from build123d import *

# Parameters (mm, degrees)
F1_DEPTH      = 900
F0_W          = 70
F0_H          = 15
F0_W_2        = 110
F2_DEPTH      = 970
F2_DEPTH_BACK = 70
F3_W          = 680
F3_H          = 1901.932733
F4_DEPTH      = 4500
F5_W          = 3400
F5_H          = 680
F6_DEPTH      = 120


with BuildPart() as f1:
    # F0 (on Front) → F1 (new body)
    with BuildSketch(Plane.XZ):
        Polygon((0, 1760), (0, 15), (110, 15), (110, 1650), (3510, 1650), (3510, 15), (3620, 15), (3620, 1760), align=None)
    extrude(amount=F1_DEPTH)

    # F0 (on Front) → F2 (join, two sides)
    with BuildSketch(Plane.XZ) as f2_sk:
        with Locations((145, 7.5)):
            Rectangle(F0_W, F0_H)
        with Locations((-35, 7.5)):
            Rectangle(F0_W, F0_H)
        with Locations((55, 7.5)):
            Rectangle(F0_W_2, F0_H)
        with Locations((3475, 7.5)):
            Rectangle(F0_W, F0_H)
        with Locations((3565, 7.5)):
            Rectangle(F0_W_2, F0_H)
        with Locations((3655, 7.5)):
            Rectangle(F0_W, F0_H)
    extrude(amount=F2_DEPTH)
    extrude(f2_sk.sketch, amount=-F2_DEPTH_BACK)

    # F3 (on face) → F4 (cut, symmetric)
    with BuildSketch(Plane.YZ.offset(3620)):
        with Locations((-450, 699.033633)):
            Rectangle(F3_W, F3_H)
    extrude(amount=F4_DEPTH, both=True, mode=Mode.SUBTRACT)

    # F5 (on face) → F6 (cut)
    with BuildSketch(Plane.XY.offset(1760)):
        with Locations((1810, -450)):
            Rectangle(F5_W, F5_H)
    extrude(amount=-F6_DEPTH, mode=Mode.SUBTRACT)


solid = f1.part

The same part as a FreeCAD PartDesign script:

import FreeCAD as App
import Part
import Sketcher

V = App.Vector


def add_polygon(sketch, points):
    """Adds a closed chain of lines whose ends are joined by coincident constraints."""
    first, n = sketch.GeometryCount, len(points)
    for a, b in zip(points, points[1:] + points[:1]):
        sketch.addGeometry(Part.LineSegment(App.Vector(*a, 0), App.Vector(*b, 0)), False)
    for i in range(n):
        sketch.addConstraint(Sketcher.Constraint("Coincident", first + i, 2, first + (i + 1) % n, 1))

doc = App.newDocument("Part")
body = doc.addObject("PartDesign::Body", "Body")

sketch1 = body.newObject("Sketcher::SketchObject", "Sketch")
sketch1.AttachmentSupport = (doc.getObject("XZ_Plane"), [""])
sketch1.MapMode = "FlatFace"
add_polygon(sketch1, [(0, 1760), (0, 15), (110, 15), (110, 1650), (3510, 1650), (3510, 15), (3620, 15), (3620, 1760)])
sketch1.addConstraint(Sketcher.Constraint("Vertical", 0))
sketch1.addConstraint(Sketcher.Constraint("Horizontal", 1))
sketch1.addConstraint(Sketcher.Constraint("Vertical", 2))
sketch1.addConstraint(Sketcher.Constraint("Horizontal", 3))
sketch1.addConstraint(Sketcher.Constraint("Vertical", 4))
sketch1.addConstraint(Sketcher.Constraint("Horizontal", 5))
sketch1.addConstraint(Sketcher.Constraint("Vertical", 6))
sketch1.addConstraint(Sketcher.Constraint("Horizontal", 7))
sketch1.addConstraint(Sketcher.Constraint("PointOnObject", 0, 2, -2))
sketch1.addConstraint(Sketcher.Constraint("Horizontal", 1, 2, 4, 2))
sketch1.addConstraint(Sketcher.Constraint("Equal", 1, 5))
sketch1.addConstraint(Sketcher.Constraint("DistanceX", 1, 1, 1, 2, 110.0))
sketch1.addConstraint(Sketcher.Constraint("DistanceX", 3, 1, 3, 2, 3400.0))
sketch1.addConstraint(Sketcher.Constraint("DistanceY", 0, 2, 0, 1, 1745.0))
sketch1.addConstraint(Sketcher.Constraint("DistanceY", 2, 1, 2, 2, 1635.0))
sketch1.addConstraint(Sketcher.Constraint("DistanceY", -1, 1, 0, 2, 15.0))
pad1 = body.newObject("PartDesign::Pad", "Pad")
pad1.Profile = sketch1
pad1.Length = 900

sketch2 = body.newObject("Sketcher::SketchObject", "Sketch001")
sketch2.AttachmentSupport = (doc.getObject("XZ_Plane"), [""])
sketch2.MapMode = "FlatFace"
add_polygon(sketch2, [(180, 0), (180, 15), (-70, 15), (-70, 0)])
add_polygon(sketch2, [(3440, 15), (3440, 0), (3690, 0), (3690, 15)])
sketch2.addConstraint(Sketcher.Constraint("Vertical", 0))
sketch2.addConstraint(Sketcher.Constraint("Horizontal", 1))
sketch2.addConstraint(Sketcher.Constraint("Vertical", 2))
sketch2.addConstraint(Sketcher.Constraint("Horizontal", 3))
sketch2.addConstraint(Sketcher.Constraint("Vertical", 4))
sketch2.addConstraint(Sketcher.Constraint("Horizontal", 5))
sketch2.addConstraint(Sketcher.Constraint("Vertical", 6))
sketch2.addConstraint(Sketcher.Constraint("Horizontal", 7))
sketch2.addConstraint(Sketcher.Constraint("PointOnObject", 2, 2, -1))
sketch2.addConstraint(Sketcher.Constraint("PointOnObject", 4, 2, -1))
sketch2.addConstraint(Sketcher.Constraint("Horizontal", 1, 2, 6, 2))
sketch2.addConstraint(Sketcher.Constraint("Equal", 3, 5))
sketch2.addConstraint(Sketcher.Constraint("DistanceX", 1, 2, 1, 1, 250.0))
sketch2.addConstraint(Sketcher.Constraint("DistanceY", 0, 1, 0, 2, 15.0))
sketch2.addConstraint(Sketcher.Constraint("DistanceX", -1, 1, 0, 2, 180.0))
sketch2.addConstraint(Sketcher.Constraint("DistanceX", -1, 1, 4, 2, 3440.0))
pad2 = body.newObject("PartDesign::Pad", "Pad001")
pad2.Profile = sketch2
pad2.Type = "TwoLengths"
pad2.Length = 970
pad2.Length2 = 70

sketch3 = body.newObject("Sketcher::SketchObject", "Sketch002")
sketch3.AttachmentSupport = (doc.getObject("YZ_Plane"), [""])
sketch3.MapMode = "FlatFace"
sketch3.AttachmentOffset = App.Placement(V(0, 0, 3620), App.Rotation())
add_polygon(sketch3, [(-790, 1650), (-790, -251.932734), (-110, -251.932734), (-110, 1650)])
sketch3.addConstraint(Sketcher.Constraint("Vertical", 0))
sketch3.addConstraint(Sketcher.Constraint("Horizontal", 1))
sketch3.addConstraint(Sketcher.Constraint("Vertical", 2))
sketch3.addConstraint(Sketcher.Constraint("Horizontal", 3))
sketch3.addConstraint(Sketcher.Constraint("DistanceX", 1, 1, 1, 2, 680.0))
sketch3.addConstraint(Sketcher.Constraint("DistanceX", 0, 2, -1, 1, 790.0))
sketch3.addConstraint(Sketcher.Constraint("DistanceY", -1, 1, 2, 2, 1650.0))
sketch3.addConstraint(Sketcher.Constraint("DistanceY", 0, 2, 0, 1, 1901.932733))
pocket1 = body.newObject("PartDesign::Pocket", "Pocket")
pocket1.Profile = sketch3
pocket1.Length = 9000
pocket1.Midplane = True

sketch4 = body.newObject("Sketcher::SketchObject", "Sketch003")
sketch4.AttachmentSupport = (doc.getObject("XY_Plane"), [""])
sketch4.MapMode = "FlatFace"
sketch4.AttachmentOffset = App.Placement(V(0, 0, 1760), App.Rotation())
add_polygon(sketch4, [(110, -110), (110, -790), (3510, -790), (3510, -110)])
sketch4.addConstraint(Sketcher.Constraint("Vertical", 0))
sketch4.addConstraint(Sketcher.Constraint("Horizontal", 1))
sketch4.addConstraint(Sketcher.Constraint("Vertical", 2))
sketch4.addConstraint(Sketcher.Constraint("Horizontal", 3))
sketch4.addConstraint(Sketcher.Constraint("DistanceX", 1, 1, 1, 2, 3400.0))
sketch4.addConstraint(Sketcher.Constraint("DistanceY", 0, 2, 0, 1, 680.0))
sketch4.addConstraint(Sketcher.Constraint("DistanceX", -1, 1, 0, 2, 110.0))
sketch4.addConstraint(Sketcher.Constraint("DistanceY", 0, 2, -1, 1, 790.0))
pocket2 = body.newObject("PartDesign::Pocket", "Pocket001")
pocket2.Profile = sketch4
pocket2.Length = 120

doc.recompute()
